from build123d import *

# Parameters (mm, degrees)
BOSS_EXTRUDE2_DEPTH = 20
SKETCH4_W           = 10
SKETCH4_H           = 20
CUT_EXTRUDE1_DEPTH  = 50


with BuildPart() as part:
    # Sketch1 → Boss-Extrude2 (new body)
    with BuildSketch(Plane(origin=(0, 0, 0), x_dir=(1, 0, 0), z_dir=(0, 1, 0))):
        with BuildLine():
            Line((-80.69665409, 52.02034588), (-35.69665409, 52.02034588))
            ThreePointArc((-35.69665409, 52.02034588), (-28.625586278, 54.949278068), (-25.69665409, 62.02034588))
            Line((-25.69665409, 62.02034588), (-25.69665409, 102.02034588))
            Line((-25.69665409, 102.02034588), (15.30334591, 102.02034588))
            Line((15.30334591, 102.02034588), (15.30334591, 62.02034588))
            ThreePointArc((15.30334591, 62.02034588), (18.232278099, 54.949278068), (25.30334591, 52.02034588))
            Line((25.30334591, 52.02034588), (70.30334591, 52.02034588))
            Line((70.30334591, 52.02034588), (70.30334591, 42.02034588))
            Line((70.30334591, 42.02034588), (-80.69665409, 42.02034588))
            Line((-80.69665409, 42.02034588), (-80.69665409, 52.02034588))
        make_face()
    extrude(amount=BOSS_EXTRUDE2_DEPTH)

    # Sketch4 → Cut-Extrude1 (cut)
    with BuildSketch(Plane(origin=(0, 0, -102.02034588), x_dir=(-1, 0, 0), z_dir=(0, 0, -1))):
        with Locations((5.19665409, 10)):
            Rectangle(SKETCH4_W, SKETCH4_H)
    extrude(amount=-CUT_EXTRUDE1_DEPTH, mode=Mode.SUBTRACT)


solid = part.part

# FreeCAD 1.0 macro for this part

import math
import FreeCAD as App
import Part
import Sketcher
from FreeCAD import Vector
Q = App.Units.Quantity

doc = App.newDocument("Part")
body = doc.addObject("PartDesign::Body", "Body")

sketch1 = doc.addObject("Sketcher::SketchObject", "Sketch")
body.addObject(sketch1)
sketch1.AttachmentSupport = (doc.XZ_Plane, [""])
sketch1.MapMode = "FlatFace"
sketch1.addGeometry(Part.LineSegment(Vector(-36, -52, 0), Vector(-81, -52, 0)), False)
sketch1.addGeometry(Part.LineSegment(Vector(-81, -52, 0), Vector(-81, -42, 0)), False)
sketch1.addGeometry(Part.LineSegment(Vector(-81, -42, 0), Vector(70, -42, 0)), False)
sketch1.addGeometry(Part.LineSegment(Vector(70, -42, 0), Vector(70, -52, 0)), False)
sketch1.addGeometry(Part.LineSegment(Vector(70, -52, 0), Vector(25, -52, 0)), False)
sketch1.addGeometry(Part.ArcOfCircle(Part.Circle(Vector(25, -62, 0), Vector(0, 0, 1), 10), math.radians(90), math.radians(180)), False)
sketch1.addGeometry(Part.LineSegment(Vector(15, -62, 0), Vector(15, -102, 0)), False)
sketch1.addGeometry(Part.LineSegment(Vector(15, -102, 0), Vector(-26, -102, 0)), False)
sketch1.addGeometry(Part.LineSegment(Vector(-26, -102, 0), Vector(-26, -62, 0)), False)
sketch1.addGeometry(Part.ArcOfCircle(Part.Circle(Vector(-36, -62, 0), Vector(0, 0, 1), 10), math.radians(0), math.radians(90)), False)
sketch1.addConstraint(Sketcher.Constraint("Coincident", 0, 2, 1, 1))
sketch1.addConstraint(Sketcher.Constraint("Coincident", 1, 2, 2, 1))
sketch1.addConstraint(Sketcher.Constraint("Coincident", 2, 2, 3, 1))
sketch1.addConstraint(Sketcher.Constraint("Coincident", 3, 2, 4, 1))
sketch1.addConstraint(Sketcher.Constraint("Tangent", 4, 2, 5, 1))
sketch1.addConstraint(Sketcher.Constraint("Tangent", 5, 2, 6, 1))
sketch1.addConstraint(Sketcher.Constraint("Coincident", 6, 2, 7, 1))
sketch1.addConstraint(Sketcher.Constraint("Coincident", 7, 2, 8, 1))
sketch1.addConstraint(Sketcher.Constraint("Tangent", 8, 2, 9, 1))
sketch1.addConstraint(Sketcher.Constraint("Tangent", 9, 2, 0, 1))
sketch1.addConstraint(Sketcher.Constraint("Horizontal", 0))
sketch1.addConstraint(Sketcher.Constraint("Vertical", 1))
sketch1.addConstraint(Sketcher.Constraint("Horizontal", 2))
sketch1.addConstraint(Sketcher.Constraint("Vertical", 3))
sketch1.addConstraint(Sketcher.Constraint("Horizontal", 4))
sketch1.addConstraint(Sketcher.Constraint("Vertical", 6))
sketch1.addConstraint(Sketcher.Constraint("Horizontal", 7))
sketch1.addConstraint(Sketcher.Constraint("Vertical", 8))
sketch1.addConstraint(Sketcher.Constraint("Equal", 5, 9))
sketch1.addConstraint(Sketcher.Constraint("Horizontal", 5, 3, 9, 3))
sketch1.addConstraint(Sketcher.Constraint("Equal", 0, 4))
sketch1.addConstraint(Sketcher.Constraint("Radius", 5, Q("10 mm")))
sketch1.addConstraint(Sketcher.Constraint("DistanceX", 0, 2, 0, 1, Q("45 mm")))
sketch1.addConstraint(Sketcher.Constraint("DistanceX", 2, 1, 2, 2, Q("151 mm")))
sketch1.addConstraint(Sketcher.Constraint("DistanceY", 1, 1, 1, 2, Q("10 mm")))
sketch1.addConstraint(Sketcher.Constraint("DistanceY", 6, 2, 6, 1, Q("40 mm")))
sketch1.addConstraint(Sketcher.Constraint("DistanceX", -1, 1, 5, 3, Q("25.303346 mm")))
sketch1.addConstraint(Sketcher.Constraint("DistanceY", 5, 3, -1, 1, Q("62.020346 mm")))
pad1 = doc.addObject("PartDesign::Pad", "Pad")
body.addObject(pad1)
pad1.Profile = sketch1
pad1.Length = 20
pad1.Reversed = True

sketch2 = doc.addObject("Sketcher::SketchObject", "Sketch001")
body.addObject(sketch2)
sketch2.AttachmentSupport = (doc.XY_Plane, [""])
sketch2.MapMode = "FlatFace"
sketch2.AttachmentOffset = App.Placement(Vector(0, 0, -102.020346), App.Rotation())
sketch2.addGeometry(Part.LineSegment(Vector(0, 20, 0), Vector(0, 0, 0)), False)
sketch2.addGeometry(Part.LineSegment(Vector(0, 0, 0), Vector(-10, 0, 0)), False)
sketch2.addGeometry(Part.LineSegment(Vector(-10, 0, 0), Vector(-10, 20, 0)), False)
sketch2.addGeometry(Part.LineSegment(Vector(-10, 20, 0), Vector(0, 20, 0)), False)
sketch2.addConstraint(Sketcher.Constraint("Coincident", 0, 2, 1, 1))
sketch2.addConstraint(Sketcher.Constraint("Coincident", 1, 2, 2, 1))
sketch2.addConstraint(Sketcher.Constraint("Coincident", 2, 2, 3, 1))
sketch2.addConstraint(Sketcher.Constraint("Coincident", 3, 2, 0, 1))
sketch2.addConstraint(Sketcher.Constraint("Vertical", 0))
sketch2.addConstraint(Sketcher.Constraint("Horizontal", 1))
sketch2.addConstraint(Sketcher.Constraint("Vertical", 2))
sketch2.addConstraint(Sketcher.Constraint("Horizontal", 3))
sketch2.addConstraint(Sketcher.Constraint("PointOnObject", 0, 2, -1))
sketch2.addConstraint(Sketcher.Constraint("DistanceX", 1, 2, 1, 1, Q("10 mm")))
sketch2.addConstraint(Sketcher.Constraint("DistanceY", 0, 2, 0, 1, Q("20 mm")))
sketch2.addConstraint(Sketcher.Constraint("DistanceX", 0, 2, -1, 1, Q("0.196654 mm")))
pocket1 = doc.addObject("PartDesign::Pocket", "Pocket")
body.addObject(pocket1)
pocket1.Profile = sketch2
pocket1.Length = 50
pocket1.Reversed = True

doc.recompute()
